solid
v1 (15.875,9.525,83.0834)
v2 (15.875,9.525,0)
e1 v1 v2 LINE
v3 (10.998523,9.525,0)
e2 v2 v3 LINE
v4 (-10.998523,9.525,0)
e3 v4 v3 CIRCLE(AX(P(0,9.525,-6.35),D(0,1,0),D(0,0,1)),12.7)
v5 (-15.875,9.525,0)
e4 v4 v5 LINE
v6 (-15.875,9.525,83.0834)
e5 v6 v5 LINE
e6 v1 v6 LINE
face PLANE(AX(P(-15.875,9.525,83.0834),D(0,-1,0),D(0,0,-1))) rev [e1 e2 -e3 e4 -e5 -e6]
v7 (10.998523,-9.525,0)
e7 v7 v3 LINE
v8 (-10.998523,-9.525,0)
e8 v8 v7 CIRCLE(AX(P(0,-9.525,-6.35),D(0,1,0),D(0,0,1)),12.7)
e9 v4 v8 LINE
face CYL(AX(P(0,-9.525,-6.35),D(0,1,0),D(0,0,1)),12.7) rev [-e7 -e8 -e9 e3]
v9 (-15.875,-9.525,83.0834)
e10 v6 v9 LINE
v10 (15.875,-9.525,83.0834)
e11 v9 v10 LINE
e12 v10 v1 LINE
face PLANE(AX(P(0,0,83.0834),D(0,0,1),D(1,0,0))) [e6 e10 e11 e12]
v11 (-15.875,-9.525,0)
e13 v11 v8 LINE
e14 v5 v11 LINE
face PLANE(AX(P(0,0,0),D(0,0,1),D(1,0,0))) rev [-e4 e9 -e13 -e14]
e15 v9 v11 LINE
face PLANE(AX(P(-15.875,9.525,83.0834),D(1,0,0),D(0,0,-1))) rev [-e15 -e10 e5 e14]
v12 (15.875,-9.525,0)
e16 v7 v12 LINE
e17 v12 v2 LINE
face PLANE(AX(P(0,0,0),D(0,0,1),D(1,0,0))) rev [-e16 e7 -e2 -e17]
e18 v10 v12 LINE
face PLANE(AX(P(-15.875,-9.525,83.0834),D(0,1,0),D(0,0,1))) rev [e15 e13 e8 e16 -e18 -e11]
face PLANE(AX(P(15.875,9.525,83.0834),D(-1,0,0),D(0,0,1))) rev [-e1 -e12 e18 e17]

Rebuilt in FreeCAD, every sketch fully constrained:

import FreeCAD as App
import Part
import Sketcher
from FreeCAD import Vector
Q = App.Units.Quantity


def add_polygon(sketch, points):
    """Adds a closed chain of lines whose ends are joined by coincident constraints."""
    first, n = sketch.GeometryCount, len(points)
    for a, b in zip(points, points[1:] + points[:1]):
        sketch.addGeometry(Part.LineSegment(App.Vector(*a, 0), App.Vector(*b, 0)), False)
    for i in range(n):
        sketch.addConstraint(Sketcher.Constraint("Coincident", first + i, 2, first + (i + 1) % n, 1))

doc = App.newDocument("Part")
params = doc.addObject("Spreadsheet::Sheet", "Params")
for row, (alias, value) in enumerate([
    ("sketch1_width", "1.25 in"),
    ("sketch1_height", "0.75 in"),
    ("pad1_length", "3.271 in"),
    ("sketch2_diameter", "1 in"),
], start=1):
    params.set(f"A{row}", alias)
    params.set(f"B{row}", "=" + value)
    params.setAlias(f"B{row}", alias)

body = doc.addObject("PartDesign::Body", "Body")

# Sketch on XY plane
sketch1 = doc.addObject("Sketcher::SketchObject", "Sketch")
body.addObject(sketch1)
sketch1.AttachmentSupport = (doc.XY_Plane, [""])
sketch1.MapMode = "FlatFace"
add_polygon(sketch1, [(-16, 10), (-16, -10), (16, -10), (16, 10)])  # lines 0-3
sketch1.addConstraint(Sketcher.Constraint("Vertical", 0))
sketch1.addConstraint(Sketcher.Constraint("Horizontal", 1))
sketch1.addConstraint(Sketcher.Constraint("Vertical", 2))
sketch1.addConstraint(Sketcher.Constraint("Horizontal", 3))
sketch1.addConstraint(Sketcher.Constraint("Symmetric", 0, 2, 2, 2, -1, 1))
sketch1.addConstraint(Sketcher.Constraint("DistanceX", 1, 1, 1, 2, Q("1.25 in")))
sketch1.addConstraint(Sketcher.Constraint("DistanceY", 0, 2, 0, 1, Q("0.75 in")))
sketch1.setExpression("Constraints[9]", "Params.sketch1_width")
sketch1.setExpression("Constraints[10]", "Params.sketch1_height")
pad1 = doc.addObject("PartDesign::Pad", "Pad")
body.addObject(pad1)
pad1.Profile = sketch1
pad1.setExpression("Length", "Params.pad1_length")

# Sketch on XZ plane
sketch2 = doc.addObject("Sketcher::SketchObject", "Sketch001")
body.addObject(sketch2)
sketch2.AttachmentSupport = (doc.XZ_Plane, [""])
sketch2.MapMode = "FlatFace"
sketch2.AttachmentOffset = App.Placement(Vector(0, 0, -0.375 * 25.4), App.Rotation())
sketch2.addGeometry(Part.Circle(Vector(0, -6, 0), Vector(0, 0, 1), 13), False)
sketch2.addConstraint(Sketcher.Constraint("PointOnObject", 0, 3, -2))
sketch2.addConstraint(Sketcher.Constraint("Diameter", 0, Q("1 in")))
sketch2.addConstraint(Sketcher.Constraint("DistanceY", 0, 3, -1, 1, Q("0.25 in")))
sketch2.setExpression("Constraints[1]", "Params.sketch2_diameter")
pocket1 = doc.addObject("PartDesign::Pocket", "Pocket")
body.addObject(pocket1)
pocket1.Profile = sketch2
pocket1.Type = "ThroughAll"
pocket1.Reversed = True

doc.recompute()
